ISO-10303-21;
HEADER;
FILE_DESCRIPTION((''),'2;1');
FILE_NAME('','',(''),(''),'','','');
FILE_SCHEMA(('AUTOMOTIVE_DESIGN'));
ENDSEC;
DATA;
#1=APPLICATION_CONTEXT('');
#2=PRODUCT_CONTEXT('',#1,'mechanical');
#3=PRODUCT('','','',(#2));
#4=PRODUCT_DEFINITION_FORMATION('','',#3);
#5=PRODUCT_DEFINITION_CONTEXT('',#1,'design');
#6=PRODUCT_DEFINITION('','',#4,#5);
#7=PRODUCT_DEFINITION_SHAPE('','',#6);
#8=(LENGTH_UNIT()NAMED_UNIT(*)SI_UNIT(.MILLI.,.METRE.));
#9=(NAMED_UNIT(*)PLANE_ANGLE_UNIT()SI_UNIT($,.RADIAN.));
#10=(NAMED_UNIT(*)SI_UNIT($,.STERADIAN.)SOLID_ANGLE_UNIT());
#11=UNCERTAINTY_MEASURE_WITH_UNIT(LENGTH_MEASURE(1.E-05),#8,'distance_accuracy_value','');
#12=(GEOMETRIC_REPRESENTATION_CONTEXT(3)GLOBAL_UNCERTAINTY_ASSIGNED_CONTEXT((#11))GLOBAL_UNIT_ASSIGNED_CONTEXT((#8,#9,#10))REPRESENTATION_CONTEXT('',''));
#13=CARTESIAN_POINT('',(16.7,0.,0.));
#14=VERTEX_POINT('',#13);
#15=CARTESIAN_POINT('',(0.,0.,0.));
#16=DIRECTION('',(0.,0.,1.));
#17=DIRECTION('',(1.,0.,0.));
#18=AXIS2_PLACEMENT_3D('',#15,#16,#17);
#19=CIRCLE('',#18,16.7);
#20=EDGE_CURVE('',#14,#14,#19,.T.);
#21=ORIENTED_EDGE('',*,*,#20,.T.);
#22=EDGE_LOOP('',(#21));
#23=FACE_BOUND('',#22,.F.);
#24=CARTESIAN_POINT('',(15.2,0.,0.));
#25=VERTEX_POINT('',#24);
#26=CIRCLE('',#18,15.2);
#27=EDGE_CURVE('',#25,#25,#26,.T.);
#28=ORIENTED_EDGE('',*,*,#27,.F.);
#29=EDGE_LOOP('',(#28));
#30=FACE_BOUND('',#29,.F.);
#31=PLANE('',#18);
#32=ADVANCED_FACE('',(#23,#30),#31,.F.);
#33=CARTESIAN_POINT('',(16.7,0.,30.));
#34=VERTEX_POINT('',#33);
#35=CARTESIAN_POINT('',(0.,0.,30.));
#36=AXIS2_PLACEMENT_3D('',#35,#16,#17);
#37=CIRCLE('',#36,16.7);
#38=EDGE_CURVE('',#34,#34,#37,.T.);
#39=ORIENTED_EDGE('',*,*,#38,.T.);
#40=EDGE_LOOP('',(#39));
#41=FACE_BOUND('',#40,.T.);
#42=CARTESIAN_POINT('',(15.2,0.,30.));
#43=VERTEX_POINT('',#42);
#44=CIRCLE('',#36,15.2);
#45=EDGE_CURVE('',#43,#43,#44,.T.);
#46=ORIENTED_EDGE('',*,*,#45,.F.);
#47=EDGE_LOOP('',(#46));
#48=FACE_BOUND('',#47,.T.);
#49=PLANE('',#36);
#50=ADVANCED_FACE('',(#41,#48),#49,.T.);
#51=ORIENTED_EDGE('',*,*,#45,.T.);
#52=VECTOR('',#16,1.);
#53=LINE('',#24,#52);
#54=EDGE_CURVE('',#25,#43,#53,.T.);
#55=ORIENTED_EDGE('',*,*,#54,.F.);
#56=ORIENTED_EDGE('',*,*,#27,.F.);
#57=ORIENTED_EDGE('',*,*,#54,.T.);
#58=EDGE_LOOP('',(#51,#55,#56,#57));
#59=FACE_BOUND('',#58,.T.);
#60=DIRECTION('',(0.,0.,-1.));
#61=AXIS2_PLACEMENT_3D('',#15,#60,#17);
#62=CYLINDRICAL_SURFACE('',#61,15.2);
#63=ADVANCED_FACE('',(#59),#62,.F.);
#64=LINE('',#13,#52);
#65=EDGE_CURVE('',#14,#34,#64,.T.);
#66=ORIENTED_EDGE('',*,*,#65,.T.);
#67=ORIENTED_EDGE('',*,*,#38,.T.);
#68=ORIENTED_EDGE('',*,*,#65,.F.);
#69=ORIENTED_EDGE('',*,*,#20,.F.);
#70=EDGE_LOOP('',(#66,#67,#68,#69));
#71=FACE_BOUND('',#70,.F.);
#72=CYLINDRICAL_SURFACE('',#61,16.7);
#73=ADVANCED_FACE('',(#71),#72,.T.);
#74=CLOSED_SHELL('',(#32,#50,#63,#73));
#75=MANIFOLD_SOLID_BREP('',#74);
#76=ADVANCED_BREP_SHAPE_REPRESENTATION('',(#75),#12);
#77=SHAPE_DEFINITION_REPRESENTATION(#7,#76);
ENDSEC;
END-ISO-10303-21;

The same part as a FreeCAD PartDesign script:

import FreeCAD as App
import Part
import Sketcher

V = App.Vector
Q = App.Units.Quantity

doc = App.newDocument("Part")
params = doc.addObject("Spreadsheet::Sheet", "Params")
for row, (alias, value) in enumerate([
    ("sketch1_diameter", "30.4 mm"),
    ("sketch1_diameter2", "33.4 mm"),
    ("pad1_length", "30 mm"),
], start=1):
    params.set(f"A{row}", alias)
    params.set(f"B{row}", "=" + value)
    params.setAlias(f"B{row}", alias)

body = doc.addObject("PartDesign::Body", "Body")

sketch1 = body.newObject("Sketcher::SketchObject", "Sketch")
sketch1.AttachmentSupport = (doc.getObject("XY_Plane"), [""])
sketch1.MapMode = "FlatFace"
sketch1.addGeometry([
    Part.Circle(V(0, 0, 0), V(0, 0, 1), 17),
    Part.Circle(V(0, 0, 0), V(0, 0, 1), 15),
], False)
sketch1.addConstraint([
    Sketcher.Constraint("Coincident", 0, 3, -1, 1),
    Sketcher.Constraint("Coincident", 1, 3, -1, 1),
    Sketcher.Constraint("Diameter", 1, Q("30.4 mm")),
    Sketcher.Constraint("Diameter", 0, Q("33.4 mm")),
])
sketch1.setExpression("Constraints[2]", "Params.sketch1_diameter")
sketch1.setExpression("Constraints[3]", "Params.sketch1_diameter2")
pad1 = body.newObject("PartDesign::Pad", "Pad")
pad1.Profile = sketch1
pad1.setExpression("Length", "Params.pad1_length")

doc.recompute()
